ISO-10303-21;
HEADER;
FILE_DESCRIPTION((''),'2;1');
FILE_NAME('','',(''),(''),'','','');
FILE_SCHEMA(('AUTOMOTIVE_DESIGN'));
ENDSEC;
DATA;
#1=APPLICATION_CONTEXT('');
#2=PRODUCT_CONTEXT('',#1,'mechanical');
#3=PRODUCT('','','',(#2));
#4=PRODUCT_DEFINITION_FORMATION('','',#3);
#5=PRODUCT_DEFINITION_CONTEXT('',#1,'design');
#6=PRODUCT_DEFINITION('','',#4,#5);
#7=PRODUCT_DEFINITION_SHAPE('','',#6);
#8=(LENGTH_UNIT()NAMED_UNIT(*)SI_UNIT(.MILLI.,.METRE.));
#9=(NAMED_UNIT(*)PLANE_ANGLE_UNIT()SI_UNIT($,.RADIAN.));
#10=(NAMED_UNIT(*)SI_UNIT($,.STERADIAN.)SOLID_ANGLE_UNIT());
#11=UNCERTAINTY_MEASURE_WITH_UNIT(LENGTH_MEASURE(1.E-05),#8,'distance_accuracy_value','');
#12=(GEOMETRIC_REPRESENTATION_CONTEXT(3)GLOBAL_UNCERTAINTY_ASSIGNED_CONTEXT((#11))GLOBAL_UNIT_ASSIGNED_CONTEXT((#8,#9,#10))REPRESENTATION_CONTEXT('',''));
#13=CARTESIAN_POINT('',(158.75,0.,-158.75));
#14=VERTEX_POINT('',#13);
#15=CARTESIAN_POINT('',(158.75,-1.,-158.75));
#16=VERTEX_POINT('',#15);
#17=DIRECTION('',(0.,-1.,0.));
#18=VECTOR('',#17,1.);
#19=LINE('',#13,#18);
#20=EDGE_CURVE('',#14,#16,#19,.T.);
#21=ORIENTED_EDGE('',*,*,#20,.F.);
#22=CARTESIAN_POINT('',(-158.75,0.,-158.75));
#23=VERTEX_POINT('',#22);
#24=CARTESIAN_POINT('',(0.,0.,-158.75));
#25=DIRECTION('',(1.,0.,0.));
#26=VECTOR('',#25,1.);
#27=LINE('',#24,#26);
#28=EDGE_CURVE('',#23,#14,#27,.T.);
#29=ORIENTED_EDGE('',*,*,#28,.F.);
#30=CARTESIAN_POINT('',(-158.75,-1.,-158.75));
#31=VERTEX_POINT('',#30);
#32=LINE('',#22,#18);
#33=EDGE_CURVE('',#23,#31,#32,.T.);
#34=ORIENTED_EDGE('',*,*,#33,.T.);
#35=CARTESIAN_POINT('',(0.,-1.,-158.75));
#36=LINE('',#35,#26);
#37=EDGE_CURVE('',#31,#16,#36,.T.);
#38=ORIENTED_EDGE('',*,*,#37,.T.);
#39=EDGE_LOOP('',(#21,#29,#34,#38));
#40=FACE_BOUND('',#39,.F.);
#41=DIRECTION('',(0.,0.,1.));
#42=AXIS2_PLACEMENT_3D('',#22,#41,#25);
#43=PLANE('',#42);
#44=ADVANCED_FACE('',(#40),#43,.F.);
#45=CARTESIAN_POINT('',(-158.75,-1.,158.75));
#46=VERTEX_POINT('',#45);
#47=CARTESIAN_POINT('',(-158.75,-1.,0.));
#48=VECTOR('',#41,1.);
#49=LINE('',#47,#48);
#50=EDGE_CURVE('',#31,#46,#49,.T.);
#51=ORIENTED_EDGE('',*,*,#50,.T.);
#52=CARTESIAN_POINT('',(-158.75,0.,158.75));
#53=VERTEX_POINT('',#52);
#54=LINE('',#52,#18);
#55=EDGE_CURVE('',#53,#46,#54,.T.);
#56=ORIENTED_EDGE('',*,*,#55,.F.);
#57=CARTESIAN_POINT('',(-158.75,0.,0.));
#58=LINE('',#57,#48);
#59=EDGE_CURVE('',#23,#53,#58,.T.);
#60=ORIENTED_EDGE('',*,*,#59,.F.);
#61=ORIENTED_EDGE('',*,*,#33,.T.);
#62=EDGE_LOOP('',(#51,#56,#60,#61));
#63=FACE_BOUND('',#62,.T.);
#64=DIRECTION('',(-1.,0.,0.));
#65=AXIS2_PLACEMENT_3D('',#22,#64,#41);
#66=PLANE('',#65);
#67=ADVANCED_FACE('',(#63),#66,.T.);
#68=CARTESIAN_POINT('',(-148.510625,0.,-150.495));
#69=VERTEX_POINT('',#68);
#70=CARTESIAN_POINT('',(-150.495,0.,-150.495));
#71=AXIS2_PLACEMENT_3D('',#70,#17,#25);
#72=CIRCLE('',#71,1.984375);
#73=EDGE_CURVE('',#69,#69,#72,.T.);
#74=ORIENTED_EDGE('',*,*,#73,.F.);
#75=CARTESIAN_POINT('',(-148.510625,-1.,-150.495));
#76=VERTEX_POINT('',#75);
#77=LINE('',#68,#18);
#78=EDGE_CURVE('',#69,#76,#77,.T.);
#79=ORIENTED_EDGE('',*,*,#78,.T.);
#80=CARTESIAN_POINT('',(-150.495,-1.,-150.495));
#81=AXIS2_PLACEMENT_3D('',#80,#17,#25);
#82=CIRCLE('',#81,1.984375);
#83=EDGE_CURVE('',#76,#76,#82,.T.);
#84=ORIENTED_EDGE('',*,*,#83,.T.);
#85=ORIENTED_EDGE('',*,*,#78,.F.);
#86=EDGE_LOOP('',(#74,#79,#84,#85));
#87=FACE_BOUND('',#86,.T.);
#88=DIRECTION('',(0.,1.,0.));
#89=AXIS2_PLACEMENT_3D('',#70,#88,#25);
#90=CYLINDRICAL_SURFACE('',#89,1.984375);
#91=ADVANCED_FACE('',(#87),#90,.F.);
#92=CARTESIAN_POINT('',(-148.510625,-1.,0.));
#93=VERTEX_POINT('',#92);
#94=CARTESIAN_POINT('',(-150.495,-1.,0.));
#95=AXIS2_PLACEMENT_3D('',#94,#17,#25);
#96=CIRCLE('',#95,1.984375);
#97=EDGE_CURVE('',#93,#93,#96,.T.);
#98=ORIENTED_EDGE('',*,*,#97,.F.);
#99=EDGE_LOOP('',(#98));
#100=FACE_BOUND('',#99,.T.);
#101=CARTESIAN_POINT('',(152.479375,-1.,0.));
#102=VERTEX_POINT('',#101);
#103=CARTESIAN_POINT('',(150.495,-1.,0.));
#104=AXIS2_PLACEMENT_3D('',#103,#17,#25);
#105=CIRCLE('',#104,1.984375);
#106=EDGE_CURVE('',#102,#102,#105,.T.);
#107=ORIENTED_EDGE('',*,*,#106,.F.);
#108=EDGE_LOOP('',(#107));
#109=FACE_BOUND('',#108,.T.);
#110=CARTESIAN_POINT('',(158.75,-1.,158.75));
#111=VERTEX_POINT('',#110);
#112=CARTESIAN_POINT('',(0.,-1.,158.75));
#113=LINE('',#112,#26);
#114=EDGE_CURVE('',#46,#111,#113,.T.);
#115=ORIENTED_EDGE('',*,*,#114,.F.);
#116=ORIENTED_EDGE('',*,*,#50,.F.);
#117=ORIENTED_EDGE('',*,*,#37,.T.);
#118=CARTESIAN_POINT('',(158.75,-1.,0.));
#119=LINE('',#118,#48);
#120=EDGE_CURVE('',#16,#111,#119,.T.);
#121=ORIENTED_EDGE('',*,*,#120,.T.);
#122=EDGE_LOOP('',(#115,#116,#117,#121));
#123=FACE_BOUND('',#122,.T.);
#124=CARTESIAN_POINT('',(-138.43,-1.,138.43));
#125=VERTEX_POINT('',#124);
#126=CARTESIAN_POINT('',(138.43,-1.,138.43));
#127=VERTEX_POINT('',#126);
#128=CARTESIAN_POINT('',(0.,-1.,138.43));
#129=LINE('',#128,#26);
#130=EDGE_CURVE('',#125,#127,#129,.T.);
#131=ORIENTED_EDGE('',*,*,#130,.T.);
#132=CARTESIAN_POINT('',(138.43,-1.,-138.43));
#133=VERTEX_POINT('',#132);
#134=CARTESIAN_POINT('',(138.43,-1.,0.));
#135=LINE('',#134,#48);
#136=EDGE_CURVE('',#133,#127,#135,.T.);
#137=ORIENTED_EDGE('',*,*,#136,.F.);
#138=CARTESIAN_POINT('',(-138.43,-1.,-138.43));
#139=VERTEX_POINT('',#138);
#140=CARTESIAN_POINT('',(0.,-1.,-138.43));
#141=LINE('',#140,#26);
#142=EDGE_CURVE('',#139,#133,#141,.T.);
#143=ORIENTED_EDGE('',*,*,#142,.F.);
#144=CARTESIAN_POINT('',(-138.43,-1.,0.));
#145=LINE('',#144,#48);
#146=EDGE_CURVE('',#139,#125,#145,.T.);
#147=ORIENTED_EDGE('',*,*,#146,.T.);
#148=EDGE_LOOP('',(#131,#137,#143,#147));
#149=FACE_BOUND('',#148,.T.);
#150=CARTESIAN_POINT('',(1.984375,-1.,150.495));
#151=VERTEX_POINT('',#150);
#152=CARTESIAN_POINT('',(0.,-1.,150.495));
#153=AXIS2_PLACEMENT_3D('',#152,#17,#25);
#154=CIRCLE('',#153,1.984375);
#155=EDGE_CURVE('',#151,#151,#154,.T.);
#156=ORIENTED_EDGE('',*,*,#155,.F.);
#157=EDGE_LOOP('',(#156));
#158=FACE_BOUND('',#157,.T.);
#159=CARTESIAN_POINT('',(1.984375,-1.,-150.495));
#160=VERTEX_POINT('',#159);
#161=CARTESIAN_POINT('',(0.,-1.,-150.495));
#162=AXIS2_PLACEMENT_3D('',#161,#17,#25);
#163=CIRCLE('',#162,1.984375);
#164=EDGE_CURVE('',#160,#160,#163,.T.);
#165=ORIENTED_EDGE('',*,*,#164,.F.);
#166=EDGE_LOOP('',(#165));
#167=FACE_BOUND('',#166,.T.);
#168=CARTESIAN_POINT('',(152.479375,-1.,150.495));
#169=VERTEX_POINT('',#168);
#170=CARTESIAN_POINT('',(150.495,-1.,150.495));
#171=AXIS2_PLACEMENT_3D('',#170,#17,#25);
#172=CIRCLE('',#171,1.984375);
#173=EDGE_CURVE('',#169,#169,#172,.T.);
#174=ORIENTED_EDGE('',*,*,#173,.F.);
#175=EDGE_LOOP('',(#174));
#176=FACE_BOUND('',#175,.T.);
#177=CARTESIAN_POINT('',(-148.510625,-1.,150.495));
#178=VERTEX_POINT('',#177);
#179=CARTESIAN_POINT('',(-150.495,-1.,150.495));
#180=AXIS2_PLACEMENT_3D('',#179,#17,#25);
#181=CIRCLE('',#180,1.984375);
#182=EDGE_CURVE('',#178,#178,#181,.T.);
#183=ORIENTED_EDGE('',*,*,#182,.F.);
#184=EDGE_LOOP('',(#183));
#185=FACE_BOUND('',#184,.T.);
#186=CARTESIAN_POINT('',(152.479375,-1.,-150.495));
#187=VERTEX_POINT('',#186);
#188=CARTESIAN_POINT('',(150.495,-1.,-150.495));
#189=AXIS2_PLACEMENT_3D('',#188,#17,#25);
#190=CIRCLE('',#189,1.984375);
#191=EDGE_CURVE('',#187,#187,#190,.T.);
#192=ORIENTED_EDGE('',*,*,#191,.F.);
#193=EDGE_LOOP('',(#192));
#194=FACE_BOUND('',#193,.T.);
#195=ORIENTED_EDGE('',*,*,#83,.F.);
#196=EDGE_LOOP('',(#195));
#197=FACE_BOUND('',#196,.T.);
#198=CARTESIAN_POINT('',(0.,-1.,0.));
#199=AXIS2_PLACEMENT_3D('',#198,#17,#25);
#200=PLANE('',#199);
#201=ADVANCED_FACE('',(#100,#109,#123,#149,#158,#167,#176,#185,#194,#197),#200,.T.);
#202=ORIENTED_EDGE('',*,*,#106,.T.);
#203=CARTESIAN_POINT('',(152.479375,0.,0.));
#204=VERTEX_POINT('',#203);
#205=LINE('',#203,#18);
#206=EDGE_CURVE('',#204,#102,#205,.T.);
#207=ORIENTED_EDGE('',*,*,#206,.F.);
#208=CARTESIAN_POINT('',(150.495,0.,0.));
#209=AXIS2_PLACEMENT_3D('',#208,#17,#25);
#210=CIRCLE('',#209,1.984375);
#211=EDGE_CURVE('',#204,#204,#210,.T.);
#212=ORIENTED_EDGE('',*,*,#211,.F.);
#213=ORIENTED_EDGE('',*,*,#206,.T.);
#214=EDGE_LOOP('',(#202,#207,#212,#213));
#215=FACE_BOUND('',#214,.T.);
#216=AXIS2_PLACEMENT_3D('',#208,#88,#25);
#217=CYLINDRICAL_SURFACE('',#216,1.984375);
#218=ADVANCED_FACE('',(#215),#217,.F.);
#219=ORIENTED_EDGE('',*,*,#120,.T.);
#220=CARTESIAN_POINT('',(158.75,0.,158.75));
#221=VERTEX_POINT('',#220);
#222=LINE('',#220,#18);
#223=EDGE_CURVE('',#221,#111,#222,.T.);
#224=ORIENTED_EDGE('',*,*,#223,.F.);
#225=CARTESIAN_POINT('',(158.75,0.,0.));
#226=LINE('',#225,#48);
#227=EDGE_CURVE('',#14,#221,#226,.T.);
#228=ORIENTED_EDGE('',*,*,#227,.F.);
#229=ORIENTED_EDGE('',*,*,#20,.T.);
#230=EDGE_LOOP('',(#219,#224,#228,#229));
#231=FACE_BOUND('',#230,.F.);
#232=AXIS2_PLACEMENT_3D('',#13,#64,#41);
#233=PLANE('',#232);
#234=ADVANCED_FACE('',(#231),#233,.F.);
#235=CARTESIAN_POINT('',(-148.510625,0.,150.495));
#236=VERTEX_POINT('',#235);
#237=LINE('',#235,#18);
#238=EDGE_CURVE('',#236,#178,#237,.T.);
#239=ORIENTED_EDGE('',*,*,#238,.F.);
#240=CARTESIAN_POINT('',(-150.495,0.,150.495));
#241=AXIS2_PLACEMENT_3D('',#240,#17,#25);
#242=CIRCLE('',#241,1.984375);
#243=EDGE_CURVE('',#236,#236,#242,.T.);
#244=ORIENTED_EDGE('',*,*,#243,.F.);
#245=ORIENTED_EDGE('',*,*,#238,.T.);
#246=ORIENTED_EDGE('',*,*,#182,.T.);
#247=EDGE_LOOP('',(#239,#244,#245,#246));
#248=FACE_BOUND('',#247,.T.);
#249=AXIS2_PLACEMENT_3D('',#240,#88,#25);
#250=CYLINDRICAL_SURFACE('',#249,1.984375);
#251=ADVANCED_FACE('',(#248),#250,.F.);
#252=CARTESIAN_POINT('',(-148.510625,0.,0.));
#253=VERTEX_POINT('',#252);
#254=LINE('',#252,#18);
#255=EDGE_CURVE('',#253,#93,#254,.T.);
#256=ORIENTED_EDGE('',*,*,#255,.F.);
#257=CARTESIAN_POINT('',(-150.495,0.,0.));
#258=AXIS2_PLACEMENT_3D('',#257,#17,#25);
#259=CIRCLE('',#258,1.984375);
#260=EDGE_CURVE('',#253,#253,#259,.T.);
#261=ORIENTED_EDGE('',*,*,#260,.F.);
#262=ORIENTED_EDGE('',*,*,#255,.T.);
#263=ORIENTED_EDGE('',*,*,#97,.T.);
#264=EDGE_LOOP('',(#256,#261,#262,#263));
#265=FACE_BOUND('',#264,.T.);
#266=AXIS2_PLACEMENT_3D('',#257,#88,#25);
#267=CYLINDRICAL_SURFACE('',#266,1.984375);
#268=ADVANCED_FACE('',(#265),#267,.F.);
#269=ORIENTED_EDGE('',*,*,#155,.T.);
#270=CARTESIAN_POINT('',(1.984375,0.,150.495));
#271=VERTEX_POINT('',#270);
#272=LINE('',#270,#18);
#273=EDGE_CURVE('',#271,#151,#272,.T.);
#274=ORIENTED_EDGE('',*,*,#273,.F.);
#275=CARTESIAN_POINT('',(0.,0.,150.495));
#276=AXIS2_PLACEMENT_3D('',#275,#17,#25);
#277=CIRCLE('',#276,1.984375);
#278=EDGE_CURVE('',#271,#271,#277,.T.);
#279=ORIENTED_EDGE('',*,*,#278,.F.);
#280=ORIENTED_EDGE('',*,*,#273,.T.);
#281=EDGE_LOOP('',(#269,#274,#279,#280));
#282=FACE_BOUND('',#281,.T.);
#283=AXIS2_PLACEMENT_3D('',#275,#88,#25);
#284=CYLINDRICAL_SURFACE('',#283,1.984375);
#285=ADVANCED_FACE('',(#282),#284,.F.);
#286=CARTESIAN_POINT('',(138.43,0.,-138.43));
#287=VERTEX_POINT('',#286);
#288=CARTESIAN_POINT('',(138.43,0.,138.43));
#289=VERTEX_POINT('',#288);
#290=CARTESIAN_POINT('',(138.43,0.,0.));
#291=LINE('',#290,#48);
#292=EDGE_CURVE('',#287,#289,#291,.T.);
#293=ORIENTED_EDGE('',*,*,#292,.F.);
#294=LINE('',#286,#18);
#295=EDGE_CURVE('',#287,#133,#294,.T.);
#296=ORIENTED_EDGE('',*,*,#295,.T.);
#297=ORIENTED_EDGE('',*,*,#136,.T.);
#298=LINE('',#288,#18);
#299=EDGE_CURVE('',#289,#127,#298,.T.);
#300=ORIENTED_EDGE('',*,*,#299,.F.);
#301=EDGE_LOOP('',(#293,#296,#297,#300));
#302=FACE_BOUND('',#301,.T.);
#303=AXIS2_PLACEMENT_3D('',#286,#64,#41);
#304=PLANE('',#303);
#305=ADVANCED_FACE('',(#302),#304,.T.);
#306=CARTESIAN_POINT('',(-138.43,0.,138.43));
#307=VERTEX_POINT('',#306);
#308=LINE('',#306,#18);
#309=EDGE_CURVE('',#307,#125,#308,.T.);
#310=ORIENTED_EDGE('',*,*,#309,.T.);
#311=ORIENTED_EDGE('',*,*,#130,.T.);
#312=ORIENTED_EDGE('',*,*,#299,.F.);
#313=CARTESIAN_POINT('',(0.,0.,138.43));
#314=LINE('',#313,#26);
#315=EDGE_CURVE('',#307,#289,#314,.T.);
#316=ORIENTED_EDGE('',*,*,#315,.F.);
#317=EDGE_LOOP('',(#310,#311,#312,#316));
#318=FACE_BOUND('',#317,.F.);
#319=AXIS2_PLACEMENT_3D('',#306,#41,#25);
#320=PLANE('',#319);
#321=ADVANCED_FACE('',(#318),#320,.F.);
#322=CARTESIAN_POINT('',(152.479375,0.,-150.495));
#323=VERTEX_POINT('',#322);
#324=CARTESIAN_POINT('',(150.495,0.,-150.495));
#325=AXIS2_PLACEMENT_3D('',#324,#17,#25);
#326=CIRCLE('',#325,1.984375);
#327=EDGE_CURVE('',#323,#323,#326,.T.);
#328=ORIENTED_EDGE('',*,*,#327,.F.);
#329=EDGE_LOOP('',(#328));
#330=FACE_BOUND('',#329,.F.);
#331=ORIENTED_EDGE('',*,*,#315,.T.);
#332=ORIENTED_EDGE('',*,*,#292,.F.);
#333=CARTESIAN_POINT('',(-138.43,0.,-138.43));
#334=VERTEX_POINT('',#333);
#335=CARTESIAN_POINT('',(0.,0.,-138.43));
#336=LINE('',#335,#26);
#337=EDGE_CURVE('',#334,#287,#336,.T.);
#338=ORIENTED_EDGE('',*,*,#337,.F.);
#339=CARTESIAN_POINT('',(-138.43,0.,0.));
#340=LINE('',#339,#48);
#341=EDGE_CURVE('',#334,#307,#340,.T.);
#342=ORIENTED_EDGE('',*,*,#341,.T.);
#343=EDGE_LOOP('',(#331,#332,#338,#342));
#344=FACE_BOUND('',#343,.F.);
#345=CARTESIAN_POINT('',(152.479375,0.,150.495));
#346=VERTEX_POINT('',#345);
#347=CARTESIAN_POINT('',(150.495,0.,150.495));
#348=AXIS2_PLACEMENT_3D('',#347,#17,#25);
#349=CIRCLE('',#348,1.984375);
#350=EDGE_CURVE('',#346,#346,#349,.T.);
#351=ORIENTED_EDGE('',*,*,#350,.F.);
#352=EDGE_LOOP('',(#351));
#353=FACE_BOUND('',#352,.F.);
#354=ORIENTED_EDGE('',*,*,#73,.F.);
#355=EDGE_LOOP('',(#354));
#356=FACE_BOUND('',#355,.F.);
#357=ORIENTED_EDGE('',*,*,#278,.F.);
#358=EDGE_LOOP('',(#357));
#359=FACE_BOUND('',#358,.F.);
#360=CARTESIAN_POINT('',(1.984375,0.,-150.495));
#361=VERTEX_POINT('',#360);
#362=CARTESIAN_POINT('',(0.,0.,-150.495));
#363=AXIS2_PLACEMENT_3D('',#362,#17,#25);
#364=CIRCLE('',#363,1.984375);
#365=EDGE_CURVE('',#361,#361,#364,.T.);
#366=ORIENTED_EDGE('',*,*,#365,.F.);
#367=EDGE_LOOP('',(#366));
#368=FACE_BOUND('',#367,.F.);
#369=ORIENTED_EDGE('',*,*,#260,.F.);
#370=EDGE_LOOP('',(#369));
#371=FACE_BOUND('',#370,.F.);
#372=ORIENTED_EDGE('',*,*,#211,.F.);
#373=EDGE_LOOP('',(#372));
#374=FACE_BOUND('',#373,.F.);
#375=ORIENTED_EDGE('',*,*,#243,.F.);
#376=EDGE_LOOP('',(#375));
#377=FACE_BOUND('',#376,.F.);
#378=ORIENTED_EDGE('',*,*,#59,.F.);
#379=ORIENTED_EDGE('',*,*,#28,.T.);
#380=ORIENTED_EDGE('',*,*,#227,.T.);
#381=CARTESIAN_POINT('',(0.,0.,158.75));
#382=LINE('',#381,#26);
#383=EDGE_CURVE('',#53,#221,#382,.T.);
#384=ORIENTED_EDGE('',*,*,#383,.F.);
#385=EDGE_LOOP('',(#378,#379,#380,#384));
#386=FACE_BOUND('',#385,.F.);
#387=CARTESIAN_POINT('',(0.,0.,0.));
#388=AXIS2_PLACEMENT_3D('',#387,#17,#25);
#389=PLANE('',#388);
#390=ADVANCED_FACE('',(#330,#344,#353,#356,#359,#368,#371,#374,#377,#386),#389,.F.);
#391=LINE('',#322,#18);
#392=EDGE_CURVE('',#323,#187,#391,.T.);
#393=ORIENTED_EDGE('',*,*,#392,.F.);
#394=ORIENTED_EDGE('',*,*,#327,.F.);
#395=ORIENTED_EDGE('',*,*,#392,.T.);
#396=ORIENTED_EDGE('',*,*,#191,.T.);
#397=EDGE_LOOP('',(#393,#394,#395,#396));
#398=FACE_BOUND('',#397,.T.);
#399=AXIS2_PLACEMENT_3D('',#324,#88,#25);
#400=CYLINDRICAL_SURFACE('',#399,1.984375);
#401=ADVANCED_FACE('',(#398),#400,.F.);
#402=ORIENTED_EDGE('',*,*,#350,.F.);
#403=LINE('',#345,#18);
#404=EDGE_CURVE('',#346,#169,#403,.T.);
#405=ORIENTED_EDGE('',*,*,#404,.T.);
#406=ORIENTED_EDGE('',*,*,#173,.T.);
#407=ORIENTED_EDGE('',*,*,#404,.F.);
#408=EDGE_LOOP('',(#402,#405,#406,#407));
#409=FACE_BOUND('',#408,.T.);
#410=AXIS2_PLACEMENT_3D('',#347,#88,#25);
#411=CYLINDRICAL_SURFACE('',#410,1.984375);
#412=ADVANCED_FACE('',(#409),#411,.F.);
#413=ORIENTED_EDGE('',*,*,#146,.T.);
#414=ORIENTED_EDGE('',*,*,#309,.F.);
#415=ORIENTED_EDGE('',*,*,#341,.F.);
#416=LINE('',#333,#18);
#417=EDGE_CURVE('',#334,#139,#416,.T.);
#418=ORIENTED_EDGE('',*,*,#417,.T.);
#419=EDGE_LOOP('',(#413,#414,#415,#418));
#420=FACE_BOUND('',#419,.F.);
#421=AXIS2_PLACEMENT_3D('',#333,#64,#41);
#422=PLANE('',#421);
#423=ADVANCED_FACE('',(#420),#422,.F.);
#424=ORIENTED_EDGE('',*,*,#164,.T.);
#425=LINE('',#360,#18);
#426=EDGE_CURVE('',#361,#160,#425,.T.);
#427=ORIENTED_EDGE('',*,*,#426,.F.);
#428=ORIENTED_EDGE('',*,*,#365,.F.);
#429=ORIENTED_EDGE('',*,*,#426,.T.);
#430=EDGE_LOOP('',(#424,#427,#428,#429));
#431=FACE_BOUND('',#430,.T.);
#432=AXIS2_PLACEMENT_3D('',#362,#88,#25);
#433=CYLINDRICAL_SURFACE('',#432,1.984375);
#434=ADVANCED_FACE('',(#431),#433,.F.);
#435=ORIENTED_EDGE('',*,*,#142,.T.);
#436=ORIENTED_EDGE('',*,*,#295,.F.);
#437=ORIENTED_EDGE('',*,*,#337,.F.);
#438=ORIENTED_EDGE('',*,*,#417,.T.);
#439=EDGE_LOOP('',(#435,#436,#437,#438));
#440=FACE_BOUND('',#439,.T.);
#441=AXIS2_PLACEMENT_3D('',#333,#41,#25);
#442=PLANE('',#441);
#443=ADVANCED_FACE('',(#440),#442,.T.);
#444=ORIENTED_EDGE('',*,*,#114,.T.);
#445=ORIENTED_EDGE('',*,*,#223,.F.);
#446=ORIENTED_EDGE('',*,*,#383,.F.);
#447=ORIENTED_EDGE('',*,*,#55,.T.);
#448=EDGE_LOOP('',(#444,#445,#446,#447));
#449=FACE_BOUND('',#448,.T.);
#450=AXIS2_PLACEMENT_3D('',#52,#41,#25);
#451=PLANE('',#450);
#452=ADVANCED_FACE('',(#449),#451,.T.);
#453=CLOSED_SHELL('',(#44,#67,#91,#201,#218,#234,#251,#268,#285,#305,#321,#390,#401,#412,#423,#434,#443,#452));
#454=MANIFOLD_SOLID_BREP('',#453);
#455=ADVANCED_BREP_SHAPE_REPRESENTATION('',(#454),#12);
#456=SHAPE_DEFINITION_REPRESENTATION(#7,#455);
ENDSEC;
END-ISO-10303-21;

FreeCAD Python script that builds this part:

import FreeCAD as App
import Part
import Sketcher
from FreeCAD import Vector
Q = App.Units.Quantity

doc = App.newDocument("Part")
params = doc.addObject("Spreadsheet::Sheet", "Params")
for row, (alias, value) in enumerate([
    ("sketch1_diameter", "0.15625 in"),
    ("sketch1_width", "12.5 in"),
    ("sketch1_width2", "10.9 in"),
    ("pad1_length", "1 mm"),
], start=1):
    params.set(f"A{row}", alias)
    params.set(f"B{row}", "=" + value)
    params.setAlias(f"B{row}", alias)

body = doc.addObject("PartDesign::Body", "Body")

# Sketch on XZ plane
sketch1 = body.newObject("Sketcher::SketchObject", "Sketch")
sketch1.AttachmentSupport = (doc.getObject("XZ_Plane"), [""])
sketch1.MapMode = "FlatFace"
sketch1.addGeometry(Part.LineSegment(Vector(-158.8, 158.8, 0), Vector(-158.8, -158.8, 0)), False)
sketch1.addGeometry(Part.LineSegment(Vector(-158.8, -158.8, 0), Vector(158.8, -158.8, 0)), False)
sketch1.addGeometry(Part.LineSegment(Vector(158.8, -158.8, 0), Vector(158.8, 158.8, 0)), False)
sketch1.addGeometry(Part.LineSegment(Vector(158.8, 158.8, 0), Vector(-158.8, 158.8, 0)), False)
sketch1.addGeometry(Part.Circle(Vector(-150.5, -150.5, 0), Vector(0, 0, 1), 2), False)
sketch1.addGeometry(Part.Circle(Vector(0, -150.5, 0), Vector(0, 0, 1), 2), False)
sketch1.addGeometry(Part.Circle(Vector(150.5, -150.5, 0), Vector(0, 0, 1), 2), False)
sketch1.addGeometry(Part.Circle(Vector(-150.5, 0, 0), Vector(0, 0, 1), 2), False)
sketch1.addGeometry(Part.Circle(Vector(-150.5, 150.5, 0), Vector(0, 0, 1), 2), False)
sketch1.addGeometry(Part.LineSegment(Vector(138.4, -138.4, 0), Vector(-138.4, -138.4, 0)), False)
sketch1.addGeometry(Part.LineSegment(Vector(-138.4, -138.4, 0), Vector(-138.4, 138.4, 0)), False)
sketch1.addGeometry(Part.LineSegment(Vector(-138.4, 138.4, 0), Vector(138.4, 138.4, 0)), False)
sketch1.addGeometry(Part.LineSegment(Vector(138.4, 138.4, 0), Vector(138.4, -138.4, 0)), False)
sketch1.addGeometry(Part.Circle(Vector(150.5, 0, 0), Vector(0, 0, 1), 2), False)
sketch1.addGeometry(Part.Circle(Vector(0, 150.5, 0), Vector(0, 0, 1), 2), False)
sketch1.addGeometry(Part.Circle(Vector(150.5, 150.5, 0), Vector(0, 0, 1), 2), False)
sketch1.addConstraint(Sketcher.Constraint("Coincident", 0, 2, 1, 1))
sketch1.addConstraint(Sketcher.Constraint("Coincident", 1, 2, 2, 1))
sketch1.addConstraint(Sketcher.Constraint("Coincident", 2, 2, 3, 1))
sketch1.addConstraint(Sketcher.Constraint("Coincident", 3, 2, 0, 1))
sketch1.addConstraint(Sketcher.Constraint("Coincident", 9, 2, 10, 1))
sketch1.addConstraint(Sketcher.Constraint("Coincident", 10, 2, 11, 1))
sketch1.addConstraint(Sketcher.Constraint("Coincident", 11, 2, 12, 1))
sketch1.addConstraint(Sketcher.Constraint("Coincident", 12, 2, 9, 1))
sketch1.addConstraint(Sketcher.Constraint("Vertical", 0))
sketch1.addConstraint(Sketcher.Constraint("Horizontal", 1))
sketch1.addConstraint(Sketcher.Constraint("Vertical", 2))
sketch1.addConstraint(Sketcher.Constraint("Horizontal", 3))
sketch1.addConstraint(Sketcher.Constraint("Horizontal", 9))
sketch1.addConstraint(Sketcher.Constraint("Vertical", 10))
sketch1.addConstraint(Sketcher.Constraint("Horizontal", 11))
sketch1.addConstraint(Sketcher.Constraint("Vertical", 12))
sketch1.addConstraint(Sketcher.Constraint("Equal", 4, 5))
sketch1.addConstraint(Sketcher.Constraint("Equal", 5, 6))
sketch1.addConstraint(Sketcher.Constraint("Equal", 6, 7))
sketch1.addConstraint(Sketcher.Constraint("Equal", 7, 8))
sketch1.addConstraint(Sketcher.Constraint("Equal", 8, 13))
sketch1.addConstraint(Sketcher.Constraint("Equal", 13, 14))
sketch1.addConstraint(Sketcher.Constraint("Equal", 14, 15))
sketch1.addConstraint(Sketcher.Constraint("Symmetric", 6, 3, 8, 3, -1, 1))
sketch1.addConstraint(Sketcher.Constraint("Symmetric", 7, 3, 13, 3, -1, 1))
sketch1.addConstraint(Sketcher.Constraint("Symmetric", 5, 3, 14, 3, -1, 1))
sketch1.addConstraint(Sketcher.Constraint("Symmetric", 4, 3, 15, 3, -1, 1))
sketch1.addConstraint(Sketcher.Constraint("Symmetric", 0, 2, 2, 2, -1, 1))
sketch1.addConstraint(Sketcher.Constraint("Symmetric", 9, 2, 11, 2, -1, 1))
sketch1.addConstraint(Sketcher.Constraint("Symmetric", 4, 3, 6, 3, -2))
sketch1.addConstraint(Sketcher.Constraint("PointOnObject", 5, 3, -2))
sketch1.addConstraint(Sketcher.Constraint("PointOnObject", 7, 3, -1))
sketch1.addConstraint(Sketcher.Constraint("Horizontal", 4, 3, 5, 3))
sketch1.addConstraint(Sketcher.Constraint("Vertical", 4, 3, 7, 3))
sketch1.addConstraint(Sketcher.Constraint("Equal", 3, 0))
sketch1.addConstraint(Sketcher.Constraint("Equal", 11, 10))
sketch1.addConstraint(Sketcher.Constraint("Diameter", 4, Q("0.15625 in")))
sketch1.addConstraint(Sketcher.Constraint("DistanceX", 1, 1, 1, 2, Q("12.5 in")))
sketch1.addConstraint(Sketcher.Constraint("DistanceX", 9, 2, 9, 1, Q("10.9 in")))
sketch1.addConstraint(Sketcher.Constraint("DistanceX", 4, 3, 6, 3, Q("11.85 in")))
sketch1.addConstraint(Sketcher.Constraint("DistanceY", 4, 3, 8, 3, Q("11.85 in")))
sketch1.setExpression("Constraints[36]", "Params.sketch1_diameter")
sketch1.setExpression("Constraints[37]", "Params.sketch1_width")
sketch1.setExpression("Constraints[38]", "Params.sketch1_width2")
pad1 = body.newObject("PartDesign::Pad", "Pad")
pad1.Profile = sketch1
pad1.setExpression("Length", "Params.pad1_length")

doc.recompute()
